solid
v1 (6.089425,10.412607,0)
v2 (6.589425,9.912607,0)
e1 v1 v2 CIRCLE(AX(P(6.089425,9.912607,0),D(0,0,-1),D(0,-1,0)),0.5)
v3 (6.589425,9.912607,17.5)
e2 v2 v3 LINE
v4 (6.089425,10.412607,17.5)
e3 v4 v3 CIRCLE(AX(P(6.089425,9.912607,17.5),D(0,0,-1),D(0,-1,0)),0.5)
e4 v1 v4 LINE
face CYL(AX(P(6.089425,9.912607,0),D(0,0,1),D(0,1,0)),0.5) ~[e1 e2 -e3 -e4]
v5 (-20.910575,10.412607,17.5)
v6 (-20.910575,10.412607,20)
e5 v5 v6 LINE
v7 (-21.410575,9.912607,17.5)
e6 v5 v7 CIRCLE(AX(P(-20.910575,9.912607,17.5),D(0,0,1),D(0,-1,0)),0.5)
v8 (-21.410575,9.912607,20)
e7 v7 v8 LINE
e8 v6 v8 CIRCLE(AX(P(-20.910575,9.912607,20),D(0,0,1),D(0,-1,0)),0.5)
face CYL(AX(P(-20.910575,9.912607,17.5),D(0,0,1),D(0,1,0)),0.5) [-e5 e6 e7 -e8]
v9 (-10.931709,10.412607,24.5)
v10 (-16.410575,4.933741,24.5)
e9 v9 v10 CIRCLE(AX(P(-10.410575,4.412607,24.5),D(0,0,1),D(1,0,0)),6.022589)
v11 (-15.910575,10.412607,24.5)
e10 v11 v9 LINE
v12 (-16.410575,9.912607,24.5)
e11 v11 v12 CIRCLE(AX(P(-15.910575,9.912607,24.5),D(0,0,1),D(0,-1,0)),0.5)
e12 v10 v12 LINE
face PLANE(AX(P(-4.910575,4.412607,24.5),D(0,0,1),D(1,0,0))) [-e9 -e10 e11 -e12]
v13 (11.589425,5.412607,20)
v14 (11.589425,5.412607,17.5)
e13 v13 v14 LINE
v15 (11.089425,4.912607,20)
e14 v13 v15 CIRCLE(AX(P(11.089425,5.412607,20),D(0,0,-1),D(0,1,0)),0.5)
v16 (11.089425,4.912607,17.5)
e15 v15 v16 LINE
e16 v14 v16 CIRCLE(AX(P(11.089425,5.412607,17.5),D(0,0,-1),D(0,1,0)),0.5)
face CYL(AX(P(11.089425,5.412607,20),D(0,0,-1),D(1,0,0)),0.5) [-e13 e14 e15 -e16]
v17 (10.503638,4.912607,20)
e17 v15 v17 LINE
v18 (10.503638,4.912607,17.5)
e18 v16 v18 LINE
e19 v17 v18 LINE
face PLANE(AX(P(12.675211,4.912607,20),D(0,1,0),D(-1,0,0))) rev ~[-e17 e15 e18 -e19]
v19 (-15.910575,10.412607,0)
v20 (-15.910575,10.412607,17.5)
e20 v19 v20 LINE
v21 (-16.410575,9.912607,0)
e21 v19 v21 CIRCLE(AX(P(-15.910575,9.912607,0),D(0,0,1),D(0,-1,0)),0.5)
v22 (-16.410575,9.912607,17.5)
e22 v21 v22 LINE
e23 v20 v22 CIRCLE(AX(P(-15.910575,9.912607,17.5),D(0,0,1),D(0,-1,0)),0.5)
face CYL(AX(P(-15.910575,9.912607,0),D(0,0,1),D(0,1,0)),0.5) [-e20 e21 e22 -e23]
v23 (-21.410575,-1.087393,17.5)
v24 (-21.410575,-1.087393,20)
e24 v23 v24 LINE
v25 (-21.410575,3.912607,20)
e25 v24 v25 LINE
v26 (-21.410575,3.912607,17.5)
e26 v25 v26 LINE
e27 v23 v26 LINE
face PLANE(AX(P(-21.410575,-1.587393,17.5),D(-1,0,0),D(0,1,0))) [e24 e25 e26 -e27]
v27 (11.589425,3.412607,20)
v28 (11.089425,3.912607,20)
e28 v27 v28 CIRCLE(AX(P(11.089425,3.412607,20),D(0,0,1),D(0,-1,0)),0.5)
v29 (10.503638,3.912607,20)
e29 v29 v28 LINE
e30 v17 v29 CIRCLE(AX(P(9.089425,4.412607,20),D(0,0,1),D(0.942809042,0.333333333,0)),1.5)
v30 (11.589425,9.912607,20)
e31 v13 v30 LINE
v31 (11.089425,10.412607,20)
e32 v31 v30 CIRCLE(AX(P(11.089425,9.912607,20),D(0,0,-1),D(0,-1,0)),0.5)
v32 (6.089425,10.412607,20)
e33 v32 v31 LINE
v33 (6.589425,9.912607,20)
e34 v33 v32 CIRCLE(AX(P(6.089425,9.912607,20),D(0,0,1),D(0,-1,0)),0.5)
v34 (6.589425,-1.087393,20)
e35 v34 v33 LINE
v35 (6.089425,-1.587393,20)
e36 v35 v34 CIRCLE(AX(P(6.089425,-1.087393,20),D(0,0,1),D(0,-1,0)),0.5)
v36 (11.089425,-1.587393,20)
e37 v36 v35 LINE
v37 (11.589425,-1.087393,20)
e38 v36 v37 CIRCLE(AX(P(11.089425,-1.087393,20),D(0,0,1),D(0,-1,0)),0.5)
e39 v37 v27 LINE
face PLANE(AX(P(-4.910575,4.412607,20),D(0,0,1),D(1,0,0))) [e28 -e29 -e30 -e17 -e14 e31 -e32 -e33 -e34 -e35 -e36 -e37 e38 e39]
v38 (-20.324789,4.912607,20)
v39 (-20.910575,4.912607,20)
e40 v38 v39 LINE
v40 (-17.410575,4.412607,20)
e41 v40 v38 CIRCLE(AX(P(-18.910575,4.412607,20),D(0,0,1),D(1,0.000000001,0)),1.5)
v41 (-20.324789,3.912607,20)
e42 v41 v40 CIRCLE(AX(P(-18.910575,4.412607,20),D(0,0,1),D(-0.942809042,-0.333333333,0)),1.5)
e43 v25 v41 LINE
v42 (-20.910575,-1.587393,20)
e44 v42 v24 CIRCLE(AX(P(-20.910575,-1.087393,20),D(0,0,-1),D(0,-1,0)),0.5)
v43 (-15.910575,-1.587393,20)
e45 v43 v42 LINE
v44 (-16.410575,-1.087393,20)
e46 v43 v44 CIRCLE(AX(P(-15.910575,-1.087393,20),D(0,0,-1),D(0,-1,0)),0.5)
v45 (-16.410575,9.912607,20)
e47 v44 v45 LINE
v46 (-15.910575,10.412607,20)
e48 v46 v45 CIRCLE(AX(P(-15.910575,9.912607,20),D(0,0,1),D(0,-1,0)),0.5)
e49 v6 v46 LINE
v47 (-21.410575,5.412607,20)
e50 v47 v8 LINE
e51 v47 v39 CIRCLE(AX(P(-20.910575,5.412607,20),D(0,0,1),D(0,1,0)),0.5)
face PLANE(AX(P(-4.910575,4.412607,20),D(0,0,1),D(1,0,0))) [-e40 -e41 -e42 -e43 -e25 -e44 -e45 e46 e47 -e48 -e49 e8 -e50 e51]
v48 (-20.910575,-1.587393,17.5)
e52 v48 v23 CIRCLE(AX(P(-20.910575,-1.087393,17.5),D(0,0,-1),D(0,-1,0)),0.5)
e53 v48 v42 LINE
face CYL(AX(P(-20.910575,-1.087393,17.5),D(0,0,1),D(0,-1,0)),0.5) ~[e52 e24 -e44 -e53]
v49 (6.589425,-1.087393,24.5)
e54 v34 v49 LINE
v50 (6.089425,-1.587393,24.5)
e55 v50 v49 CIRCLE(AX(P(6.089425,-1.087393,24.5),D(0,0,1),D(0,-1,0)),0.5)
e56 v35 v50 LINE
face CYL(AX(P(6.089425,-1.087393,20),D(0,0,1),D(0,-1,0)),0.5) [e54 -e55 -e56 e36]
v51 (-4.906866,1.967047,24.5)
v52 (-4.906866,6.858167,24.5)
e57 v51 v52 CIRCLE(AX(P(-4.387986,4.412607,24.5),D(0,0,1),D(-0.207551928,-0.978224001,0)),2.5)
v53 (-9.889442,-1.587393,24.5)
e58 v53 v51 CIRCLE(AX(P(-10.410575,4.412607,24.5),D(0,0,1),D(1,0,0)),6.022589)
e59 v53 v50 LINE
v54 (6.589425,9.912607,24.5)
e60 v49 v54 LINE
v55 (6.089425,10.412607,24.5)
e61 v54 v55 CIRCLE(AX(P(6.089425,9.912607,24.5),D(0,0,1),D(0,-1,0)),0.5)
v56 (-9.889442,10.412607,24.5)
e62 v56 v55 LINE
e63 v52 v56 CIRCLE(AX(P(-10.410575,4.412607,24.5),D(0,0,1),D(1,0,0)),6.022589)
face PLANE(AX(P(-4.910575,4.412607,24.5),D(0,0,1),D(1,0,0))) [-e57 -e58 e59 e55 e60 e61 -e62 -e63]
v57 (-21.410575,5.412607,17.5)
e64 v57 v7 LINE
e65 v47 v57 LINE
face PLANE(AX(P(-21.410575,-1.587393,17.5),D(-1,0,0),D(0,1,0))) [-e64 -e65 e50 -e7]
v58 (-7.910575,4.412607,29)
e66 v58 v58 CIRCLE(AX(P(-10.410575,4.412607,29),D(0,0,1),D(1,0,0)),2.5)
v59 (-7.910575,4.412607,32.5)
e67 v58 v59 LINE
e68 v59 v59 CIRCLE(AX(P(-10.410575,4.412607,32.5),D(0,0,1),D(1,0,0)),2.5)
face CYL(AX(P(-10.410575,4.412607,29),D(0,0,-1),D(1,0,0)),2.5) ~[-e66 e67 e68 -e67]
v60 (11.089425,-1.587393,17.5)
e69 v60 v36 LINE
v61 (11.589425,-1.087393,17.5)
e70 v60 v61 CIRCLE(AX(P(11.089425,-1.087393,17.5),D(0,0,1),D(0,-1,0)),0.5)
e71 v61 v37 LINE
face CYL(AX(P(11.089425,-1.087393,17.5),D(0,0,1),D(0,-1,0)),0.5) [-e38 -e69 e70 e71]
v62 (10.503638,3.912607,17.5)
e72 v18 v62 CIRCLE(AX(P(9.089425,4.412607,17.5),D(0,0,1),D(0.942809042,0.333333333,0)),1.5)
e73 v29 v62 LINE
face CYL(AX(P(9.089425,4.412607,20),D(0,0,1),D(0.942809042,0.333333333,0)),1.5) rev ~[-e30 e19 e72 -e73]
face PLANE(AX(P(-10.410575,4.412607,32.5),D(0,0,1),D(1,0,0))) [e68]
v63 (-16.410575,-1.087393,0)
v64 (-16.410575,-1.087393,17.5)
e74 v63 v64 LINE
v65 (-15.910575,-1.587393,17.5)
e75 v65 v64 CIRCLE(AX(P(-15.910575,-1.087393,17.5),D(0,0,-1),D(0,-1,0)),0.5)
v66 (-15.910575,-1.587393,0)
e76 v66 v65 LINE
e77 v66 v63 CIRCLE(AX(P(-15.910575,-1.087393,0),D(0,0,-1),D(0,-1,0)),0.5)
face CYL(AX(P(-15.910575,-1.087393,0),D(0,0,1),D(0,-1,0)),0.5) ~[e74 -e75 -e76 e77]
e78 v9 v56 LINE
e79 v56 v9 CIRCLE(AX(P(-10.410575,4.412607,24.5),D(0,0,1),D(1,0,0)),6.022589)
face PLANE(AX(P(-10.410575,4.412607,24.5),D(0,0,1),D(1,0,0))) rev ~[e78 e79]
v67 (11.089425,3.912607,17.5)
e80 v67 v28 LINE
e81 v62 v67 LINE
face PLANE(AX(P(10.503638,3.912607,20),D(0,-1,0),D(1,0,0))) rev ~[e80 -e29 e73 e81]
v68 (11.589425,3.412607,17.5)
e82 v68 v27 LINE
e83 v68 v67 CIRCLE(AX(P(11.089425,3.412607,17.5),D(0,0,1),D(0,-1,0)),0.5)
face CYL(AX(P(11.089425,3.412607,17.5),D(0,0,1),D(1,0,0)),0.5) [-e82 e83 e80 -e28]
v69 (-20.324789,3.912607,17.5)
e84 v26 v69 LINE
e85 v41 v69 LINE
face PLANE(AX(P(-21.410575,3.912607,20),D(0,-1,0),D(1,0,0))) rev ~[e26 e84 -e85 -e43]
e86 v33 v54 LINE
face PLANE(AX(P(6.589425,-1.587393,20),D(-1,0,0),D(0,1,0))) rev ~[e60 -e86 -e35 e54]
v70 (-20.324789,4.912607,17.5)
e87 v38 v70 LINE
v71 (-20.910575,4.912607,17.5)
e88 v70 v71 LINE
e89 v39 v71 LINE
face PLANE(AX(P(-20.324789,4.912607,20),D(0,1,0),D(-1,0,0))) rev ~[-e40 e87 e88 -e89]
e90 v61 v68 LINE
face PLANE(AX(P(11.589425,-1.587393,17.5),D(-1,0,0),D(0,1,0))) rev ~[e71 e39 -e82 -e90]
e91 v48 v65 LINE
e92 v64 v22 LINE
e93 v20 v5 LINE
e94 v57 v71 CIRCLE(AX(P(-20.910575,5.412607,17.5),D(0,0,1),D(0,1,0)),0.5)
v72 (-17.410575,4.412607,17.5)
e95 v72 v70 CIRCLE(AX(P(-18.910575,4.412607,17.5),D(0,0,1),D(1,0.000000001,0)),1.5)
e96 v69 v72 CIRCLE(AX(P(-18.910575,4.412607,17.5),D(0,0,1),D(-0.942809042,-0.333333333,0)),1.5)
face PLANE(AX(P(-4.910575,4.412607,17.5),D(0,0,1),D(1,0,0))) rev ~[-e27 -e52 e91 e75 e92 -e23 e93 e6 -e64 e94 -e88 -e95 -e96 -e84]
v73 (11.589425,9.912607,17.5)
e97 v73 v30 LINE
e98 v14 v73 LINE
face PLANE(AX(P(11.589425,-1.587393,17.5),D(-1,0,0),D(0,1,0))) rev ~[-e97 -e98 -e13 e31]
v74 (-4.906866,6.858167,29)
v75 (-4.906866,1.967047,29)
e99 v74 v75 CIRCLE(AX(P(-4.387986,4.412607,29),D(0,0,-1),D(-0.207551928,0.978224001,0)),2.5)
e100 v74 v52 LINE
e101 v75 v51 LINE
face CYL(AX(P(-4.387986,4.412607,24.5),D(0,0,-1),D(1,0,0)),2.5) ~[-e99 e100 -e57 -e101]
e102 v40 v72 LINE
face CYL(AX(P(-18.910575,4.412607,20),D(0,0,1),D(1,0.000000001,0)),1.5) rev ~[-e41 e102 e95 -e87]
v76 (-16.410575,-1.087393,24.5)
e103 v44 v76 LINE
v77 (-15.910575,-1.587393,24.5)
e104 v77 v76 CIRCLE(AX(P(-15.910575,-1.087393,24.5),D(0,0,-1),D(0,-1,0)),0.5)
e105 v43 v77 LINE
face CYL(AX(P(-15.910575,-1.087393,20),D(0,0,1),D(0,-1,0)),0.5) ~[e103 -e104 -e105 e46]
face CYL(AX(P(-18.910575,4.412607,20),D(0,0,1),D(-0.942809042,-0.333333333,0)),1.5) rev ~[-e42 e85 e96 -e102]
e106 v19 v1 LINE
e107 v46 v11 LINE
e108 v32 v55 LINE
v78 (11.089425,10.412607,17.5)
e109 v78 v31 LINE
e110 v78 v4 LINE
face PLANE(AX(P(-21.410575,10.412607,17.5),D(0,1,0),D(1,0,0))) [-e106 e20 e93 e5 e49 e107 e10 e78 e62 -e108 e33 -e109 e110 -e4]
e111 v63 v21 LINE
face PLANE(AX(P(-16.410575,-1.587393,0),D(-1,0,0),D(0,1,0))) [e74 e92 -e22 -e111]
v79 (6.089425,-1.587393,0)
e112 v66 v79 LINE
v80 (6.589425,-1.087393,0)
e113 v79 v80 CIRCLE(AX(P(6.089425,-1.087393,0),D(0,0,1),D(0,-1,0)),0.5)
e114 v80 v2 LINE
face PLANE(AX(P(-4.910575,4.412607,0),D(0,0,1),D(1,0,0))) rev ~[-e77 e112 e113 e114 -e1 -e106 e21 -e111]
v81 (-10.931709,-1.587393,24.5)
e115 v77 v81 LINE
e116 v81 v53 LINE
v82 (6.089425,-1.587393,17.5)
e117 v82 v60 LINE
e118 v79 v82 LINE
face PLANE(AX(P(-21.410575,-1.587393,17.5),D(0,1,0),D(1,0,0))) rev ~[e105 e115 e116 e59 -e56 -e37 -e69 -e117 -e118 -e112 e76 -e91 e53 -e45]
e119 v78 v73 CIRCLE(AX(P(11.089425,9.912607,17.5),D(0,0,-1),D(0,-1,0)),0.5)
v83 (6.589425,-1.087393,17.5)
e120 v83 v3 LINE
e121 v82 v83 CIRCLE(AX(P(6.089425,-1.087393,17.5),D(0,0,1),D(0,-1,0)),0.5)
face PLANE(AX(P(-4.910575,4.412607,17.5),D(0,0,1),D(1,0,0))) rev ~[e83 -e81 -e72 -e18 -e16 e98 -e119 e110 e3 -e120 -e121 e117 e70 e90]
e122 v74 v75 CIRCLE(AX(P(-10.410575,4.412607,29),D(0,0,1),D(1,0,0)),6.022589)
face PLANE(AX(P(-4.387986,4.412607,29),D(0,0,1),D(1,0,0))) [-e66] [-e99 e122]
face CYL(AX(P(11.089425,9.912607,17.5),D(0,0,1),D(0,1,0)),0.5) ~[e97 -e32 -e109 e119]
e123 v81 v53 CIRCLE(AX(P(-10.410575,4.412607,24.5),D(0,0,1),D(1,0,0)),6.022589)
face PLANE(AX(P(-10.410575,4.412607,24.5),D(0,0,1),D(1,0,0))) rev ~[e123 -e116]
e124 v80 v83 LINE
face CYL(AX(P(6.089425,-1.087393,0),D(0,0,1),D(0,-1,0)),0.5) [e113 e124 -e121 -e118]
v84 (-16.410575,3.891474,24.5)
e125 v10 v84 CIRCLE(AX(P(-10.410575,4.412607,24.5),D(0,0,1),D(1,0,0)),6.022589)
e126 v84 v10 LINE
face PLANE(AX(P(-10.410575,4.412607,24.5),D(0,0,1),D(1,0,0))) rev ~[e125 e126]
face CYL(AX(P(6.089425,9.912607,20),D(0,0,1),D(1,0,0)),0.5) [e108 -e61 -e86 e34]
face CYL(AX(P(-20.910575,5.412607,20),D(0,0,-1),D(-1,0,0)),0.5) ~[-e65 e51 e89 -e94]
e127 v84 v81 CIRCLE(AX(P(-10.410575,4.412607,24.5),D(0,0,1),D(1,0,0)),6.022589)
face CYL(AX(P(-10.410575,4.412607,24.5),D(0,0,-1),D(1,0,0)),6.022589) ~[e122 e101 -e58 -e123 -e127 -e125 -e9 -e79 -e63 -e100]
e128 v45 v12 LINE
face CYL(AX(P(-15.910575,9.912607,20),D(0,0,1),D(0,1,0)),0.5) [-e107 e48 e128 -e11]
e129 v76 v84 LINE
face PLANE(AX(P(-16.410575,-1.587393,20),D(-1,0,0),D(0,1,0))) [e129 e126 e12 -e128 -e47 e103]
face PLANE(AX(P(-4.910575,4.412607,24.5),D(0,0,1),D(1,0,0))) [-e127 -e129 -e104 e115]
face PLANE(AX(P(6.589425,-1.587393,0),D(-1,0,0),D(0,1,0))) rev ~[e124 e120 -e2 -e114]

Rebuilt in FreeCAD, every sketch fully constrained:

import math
import FreeCAD as App
import Part
import Sketcher

V = App.Vector


def edges_at(feature, points):
    """Names of the edges that pass closest to the given points."""
    edges = feature.Shape.Edges
    near = lambda p: min(range(len(edges)), key=lambda i: edges[i].distToShape(Part.Vertex(*p))[0])
    return sorted({f"Edge{near(p) + 1}" for p in points})


def add_polygon(sketch, points):
    """Adds a closed chain of lines whose ends are joined by coincident constraints."""
    first, n = sketch.GeometryCount, len(points)
    for a, b in zip(points, points[1:] + points[:1]):
        sketch.addGeometry(Part.LineSegment(App.Vector(*a, 0), App.Vector(*b, 0)), False)
    for i in range(n):
        sketch.addConstraint(Sketcher.Constraint("Coincident", first + i, 2, first + (i + 1) % n, 1))

doc = App.newDocument("Part")
params = doc.addObject("Spreadsheet::Sheet", "Params")
for row, (alias, value) in enumerate([
    ("sketch1_width", "23 mm"),
    ("sketch1_height", "12 mm"),
    ("pad1_length", "17.5 mm"),
    ("sketch2_width", "33 mm"),
    ("sketch2_height", "12 mm"),
    ("pad2_length", "2.5 mm"),
    ("sketch3_width", "23 mm"),
    ("sketch3_height", "12 mm"),
    ("pad3_length", "4.5 mm"),
    ("pad4_length", "4.5 mm"),
    ("sketch5_diameter", "5 mm"),
    ("pad5_length", "4.5 mm"),
    ("sketch6_diameter", "5 mm"),
    ("pad6_length", "3.5 mm"),
    ("sketch7_radius", "1.5 mm"),
    ("sketch7_height", "1 mm"),
    ("fillet_radius", "0.5 mm"),
], start=1):
    params.set(f"A{row}", alias)
    params.set(f"B{row}", "=" + value)
    params.setAlias(f"B{row}", alias)

body = doc.addObject("PartDesign::Body", "Body")

sketch1 = doc.addObject("Sketcher::SketchObject", "Sketch")
body.addObject(sketch1)
sketch1.AttachmentSupport = (doc.XY_Plane, [""])
sketch1.MapMode = "FlatFace"
add_polygon(sketch1, [(-16.410575, 10.412607), (-16.410575, -1.587393), (6.589425, -1.587393), (6.589425, 10.412607)])
sketch1.addConstraint(Sketcher.Constraint("Vertical", 0))
sketch1.addConstraint(Sketcher.Constraint("Horizontal", 1))
sketch1.addConstraint(Sketcher.Constraint("Vertical", 2))
sketch1.addConstraint(Sketcher.Constraint("Horizontal", 3))
sketch1.addConstraint(Sketcher.Constraint("DistanceX", 1, 1, 1, 2, 23.0))
sketch1.addConstraint(Sketcher.Constraint("DistanceY", 0, 2, 0, 1, 12.0))
sketch1.addConstraint(Sketcher.Constraint("DistanceX", 0, 2, -1, 1, 16.410575))
sketch1.addConstraint(Sketcher.Constraint("DistanceY", 0, 2, -1, 1, 1.587393))
sketch1.setExpression("Constraints[8]", "Params.sketch1_width")
sketch1.setExpression("Constraints[9]", "Params.sketch1_height")
pad1 = doc.addObject("PartDesign::Pad", "Pad")
body.addObject(pad1)
pad1.Profile = sketch1
pad1.setExpression("Length", "Params.pad1_length")

sketch2 = doc.addObject("Sketcher::SketchObject", "Sketch001")
body.addObject(sketch2)
sketch2.AttachmentSupport = (doc.XY_Plane, [""])
sketch2.MapMode = "FlatFace"
sketch2.AttachmentOffset = App.Placement(V(0, 0, 17.5), App.Rotation())
add_polygon(sketch2, [(-21.410575, 10.412607), (-21.410575, -1.587393), (11.589425, -1.587393), (11.589425, 10.412607)])
sketch2.addConstraint(Sketcher.Constraint("Vertical", 0))
sketch2.addConstraint(Sketcher.Constraint("Horizontal", 1))
sketch2.addConstraint(Sketcher.Constraint("Vertical", 2))
sketch2.addConstraint(Sketcher.Constraint("Horizontal", 3))
sketch2.addConstraint(Sketcher.Constraint("DistanceX", 1, 1, 1, 2, 33.0))
sketch2.addConstraint(Sketcher.Constraint("DistanceY", 0, 2, 0, 1, 12.0))
sketch2.addConstraint(Sketcher.Constraint("DistanceX", 0, 2, -1, 1, 21.410575))
sketch2.addConstraint(Sketcher.Constraint("DistanceY", 0, 2, -1, 1, 1.587393))
sketch2.setExpression("Constraints[8]", "Params.sketch2_width")
sketch2.setExpression("Constraints[9]", "Params.sketch2_height")
pad2 = doc.addObject("PartDesign::Pad", "Pad001")
body.addObject(pad2)
pad2.Profile = sketch2
pad2.setExpression("Length", "Params.pad2_length")

sketch3 = doc.addObject("Sketcher::SketchObject", "Sketch002")
body.addObject(sketch3)
sketch3.AttachmentSupport = (doc.XY_Plane, [""])
sketch3.MapMode = "FlatFace"
sketch3.AttachmentOffset = App.Placement(V(0, 0, 20), App.Rotation())
add_polygon(sketch3, [(-16.410575, 10.412607), (-16.410575, -1.587393), (6.589425, -1.587393), (6.589425, 10.412607)])
sketch3.addConstraint(Sketcher.Constraint("Vertical", 0))
sketch3.addConstraint(Sketcher.Constraint("Horizontal", 1))
sketch3.addConstraint(Sketcher.Constraint("Vertical", 2))
sketch3.addConstraint(Sketcher.Constraint("Horizontal", 3))
sketch3.addConstraint(Sketcher.Constraint("DistanceX", 1, 1, 1, 2, 23.0))
sketch3.addConstraint(Sketcher.Constraint("DistanceY", 0, 2, 0, 1, 12.0))
sketch3.addConstraint(Sketcher.Constraint("DistanceX", 0, 2, -1, 1, 16.410575))
sketch3.addConstraint(Sketcher.Constraint("DistanceY", 0, 2, -1, 1, 1.587393))
sketch3.setExpression("Constraints[8]", "Params.sketch3_width")
sketch3.setExpression("Constraints[9]", "Params.sketch3_height")
pad3 = doc.addObject("PartDesign::Pad", "Pad002")
body.addObject(pad3)
pad3.Profile = sketch3
pad3.setExpression("Length", "Params.pad3_length")

sketch4 = doc.addObject("Sketcher::SketchObject", "Sketch003")
body.addObject(sketch4)
sketch4.AttachmentSupport = (doc.XY_Plane, [""])
sketch4.MapMode = "FlatFace"
sketch4.AttachmentOffset = App.Placement(V(0, 0, 24.5), App.Rotation())
sketch4.addGeometry(Part.Circle(V(-10.410575, 4.412607, 0), V(0, 0, 1), 6.022589), False)
sketch4.addConstraint(Sketcher.Constraint("Diameter", 0, 12.045178))
sketch4.addConstraint(Sketcher.Constraint("DistanceX", 0, 3, -1, 1, 10.410575))
sketch4.addConstraint(Sketcher.Constraint("DistanceY", -1, 1, 0, 3, 4.412607))
pad4 = doc.addObject("PartDesign::Pad", "Pad003")
body.addObject(pad4)
pad4.Profile = sketch4
pad4.setExpression("Length", "Params.pad4_length")

sketch5 = doc.addObject("Sketcher::SketchObject", "Sketch004")
body.addObject(sketch5)
sketch5.AttachmentSupport = (doc.XY_Plane, [""])
sketch5.MapMode = "FlatFace"
sketch5.AttachmentOffset = App.Placement(V(0, 0, 24.5), App.Rotation())
sketch5.addGeometry(Part.Circle(V(-4.387986, 4.412607, 0), V(0, 0, 1), 2.5), False)
sketch5.addConstraint(Sketcher.Constraint("Diameter", 0, 5.0))
sketch5.addConstraint(Sketcher.Constraint("DistanceX", 0, 3, -1, 1, 4.387986))
sketch5.addConstraint(Sketcher.Constraint("DistanceY", -1, 1, 0, 3, 4.412607))
sketch5.setExpression("Constraints[0]", "Params.sketch5_diameter")
pad5 = doc.addObject("PartDesign::Pad", "Pad004")
body.addObject(pad5)
pad5.Profile = sketch5
pad5.setExpression("Length", "Params.pad5_length")

sketch6 = doc.addObject("Sketcher::SketchObject", "Sketch005")
body.addObject(sketch6)
sketch6.AttachmentSupport = (doc.XY_Plane, [""])
sketch6.MapMode = "FlatFace"
sketch6.AttachmentOffset = App.Placement(V(0, 0, 29), App.Rotation())
sketch6.addGeometry(Part.Circle(V(-10.410575, 4.412607, 0), V(0, 0, 1), 2.5), False)
sketch6.addConstraint(Sketcher.Constraint("Diameter", 0, 5.0))
sketch6.addConstraint(Sketcher.Constraint("DistanceX", 0, 3, -1, 1, 10.410575))
sketch6.addConstraint(Sketcher.Constraint("DistanceY", -1, 1, 0, 3, 4.412607))
sketch6.setExpression("Constraints[0]", "Params.sketch6_diameter")
pad6 = doc.addObject("PartDesign::Pad", "Pad005")
body.addObject(pad6)
pad6.Profile = sketch6
pad6.setExpression("Length", "Params.pad6_length")

sketch7 = doc.addObject("Sketcher::SketchObject", "Sketch006")
body.addObject(sketch7)
sketch7.AttachmentSupport = (doc.XY_Plane, [""])
sketch7.MapMode = "FlatFace"
sketch7.AttachmentOffset = App.Placement(V(0, 0, 20), App.Rotation())
sketch7.addGeometry(Part.ArcOfCircle(Part.Circle(V(-18.910575, 4.412607, 0), V(0, 0, 1), 1.5), math.radians(-160.528779), math.radians(0)), False)
sketch7.addGeometry(Part.ArcOfCircle(Part.Circle(V(-18.910575, 4.412607, 0), V(0, 0, 1), 1.5), math.radians(0), math.radians(160.528779)), False)
sketch7.addGeometry(Part.LineSegment(V(-20.324789, 4.912607, 0), V(-21.410575, 4.912607, 0)), False)
sketch7.addGeometry(Part.LineSegment(V(-21.410575, 4.912607, 0), V(-21.410575, 3.912607, 0)), False)
sketch7.addGeometry(Part.LineSegment(V(-21.410575, 3.912607, 0), V(-20.324789, 3.912607, 0)), False)
sketch7.addGeometry(Part.ArcOfCircle(Part.Circle(V(9.089425, 4.412607, 0), V(0, 0, 1), 1.5), math.radians(19.471221), math.radians(340.528779)), False)
sketch7.addGeometry(Part.LineSegment(V(10.503638, 3.912607, 0), V(12.675211, 3.912607, 0)), False)
sketch7.addGeometry(Part.LineSegment(V(12.675211, 3.912607, 0), V(12.675211, 4.912607, 0)), False)
sketch7.addGeometry(Part.LineSegment(V(12.675211, 4.912607, 0), V(10.503638, 4.912607, 0)), False)
sketch7.addConstraint(Sketcher.Constraint("Tangent", 0, 2, 1, 1))
sketch7.addConstraint(Sketcher.Constraint("Coincident", 1, 2, 2, 1))
sketch7.addConstraint(Sketcher.Constraint("Coincident", 2, 2, 3, 1))
sketch7.addConstraint(Sketcher.Constraint("Coincident", 3, 2, 4, 1))
sketch7.addConstraint(Sketcher.Constraint("Coincident", 4, 2, 0, 1))
sketch7.addConstraint(Sketcher.Constraint("Coincident", 5, 2, 6, 1))
sketch7.addConstraint(Sketcher.Constraint("Coincident", 6, 2, 7, 1))
sketch7.addConstraint(Sketcher.Constraint("Coincident", 7, 2, 8, 1))
sketch7.addConstraint(Sketcher.Constraint("Coincident", 8, 2, 5, 1))
sketch7.addConstraint(Sketcher.Constraint("Horizontal", 2))
sketch7.addConstraint(Sketcher.Constraint("Vertical", 3))
sketch7.addConstraint(Sketcher.Constraint("Horizontal", 4))
sketch7.addConstraint(Sketcher.Constraint("Horizontal", 6))
sketch7.addConstraint(Sketcher.Constraint("Vertical", 7))
sketch7.addConstraint(Sketcher.Constraint("Horizontal", 8))
sketch7.addConstraint(Sketcher.Constraint("Equal", 0, 1))
sketch7.addConstraint(Sketcher.Constraint("Equal", 1, 5))
sketch7.addConstraint(Sketcher.Constraint("Horizontal", 1, 3, 5, 3))
sketch7.addConstraint(Sketcher.Constraint("Horizontal", 5, 3, 0, 2))
sketch7.addConstraint(Sketcher.Constraint("Horizontal", 4, 2, 5, 2))
sketch7.addConstraint(Sketcher.Constraint("Horizontal", 2, 2, 7, 2))
sketch7.addConstraint(Sketcher.Constraint("Vertical", 1, 2, 4, 2))
sketch7.addConstraint(Sketcher.Constraint("Radius", 0, 1.5))
sketch7.addConstraint(Sketcher.Constraint("DistanceY", 3, 2, 3, 1, 1.0))
sketch7.addConstraint(Sketcher.Constraint("DistanceX", 0, 3, 5, 3, 28.0))
sketch7.addConstraint(Sketcher.Constraint("DistanceX", 2, 2, 0, 2, 4.0))
sketch7.addConstraint(Sketcher.Constraint("DistanceX", 6, 1, 6, 2, 2.171573))
sketch7.addConstraint(Sketcher.Constraint("DistanceX", 1, 2, -1, 1, 20.324789))
sketch7.addConstraint(Sketcher.Constraint("DistanceY", -1, 1, 0, 3, 4.412607))
sketch7.setExpression("Constraints[22]", "Params.sketch7_radius")
sketch7.setExpression("Constraints[23]", "Params.sketch7_height")
pocket1 = doc.addObject("PartDesign::Pocket", "Pocket")
body.addObject(pocket1)
pocket1.Profile = sketch7
pocket1.Type = "ThroughAll"
doc.recompute()

fillet = doc.addObject("PartDesign::Fillet", "Fillet")
body.addObject(fillet)
fillet.Base = (pocket1, edges_at(pocket1, [
    (-21.411, 10.413, 18.75),
    (-21.411, -1.587, 18.75),
    (11.589, -1.587, 18.75),
    (11.589, 10.413, 18.75),
    (-16.411, 10.413, 22.25),
    (-16.411, -1.587, 22.25),
    (6.589, -1.587, 22.25),
    (6.589, 10.413, 22.25),
    (-21.411, 4.913, 18.75),
    (-16.411, 10.413, 8.75),
    (6.589, 10.413, 8.75),
    (6.589, -1.587, 8.75),
    (-16.411, -1.587, 8.75),
    (11.589, 4.913, 18.75),
    (11.589, 3.913, 18.75),
]))
fillet.setExpression("Radius", "Params.fillet_radius")

doc.recompute()
